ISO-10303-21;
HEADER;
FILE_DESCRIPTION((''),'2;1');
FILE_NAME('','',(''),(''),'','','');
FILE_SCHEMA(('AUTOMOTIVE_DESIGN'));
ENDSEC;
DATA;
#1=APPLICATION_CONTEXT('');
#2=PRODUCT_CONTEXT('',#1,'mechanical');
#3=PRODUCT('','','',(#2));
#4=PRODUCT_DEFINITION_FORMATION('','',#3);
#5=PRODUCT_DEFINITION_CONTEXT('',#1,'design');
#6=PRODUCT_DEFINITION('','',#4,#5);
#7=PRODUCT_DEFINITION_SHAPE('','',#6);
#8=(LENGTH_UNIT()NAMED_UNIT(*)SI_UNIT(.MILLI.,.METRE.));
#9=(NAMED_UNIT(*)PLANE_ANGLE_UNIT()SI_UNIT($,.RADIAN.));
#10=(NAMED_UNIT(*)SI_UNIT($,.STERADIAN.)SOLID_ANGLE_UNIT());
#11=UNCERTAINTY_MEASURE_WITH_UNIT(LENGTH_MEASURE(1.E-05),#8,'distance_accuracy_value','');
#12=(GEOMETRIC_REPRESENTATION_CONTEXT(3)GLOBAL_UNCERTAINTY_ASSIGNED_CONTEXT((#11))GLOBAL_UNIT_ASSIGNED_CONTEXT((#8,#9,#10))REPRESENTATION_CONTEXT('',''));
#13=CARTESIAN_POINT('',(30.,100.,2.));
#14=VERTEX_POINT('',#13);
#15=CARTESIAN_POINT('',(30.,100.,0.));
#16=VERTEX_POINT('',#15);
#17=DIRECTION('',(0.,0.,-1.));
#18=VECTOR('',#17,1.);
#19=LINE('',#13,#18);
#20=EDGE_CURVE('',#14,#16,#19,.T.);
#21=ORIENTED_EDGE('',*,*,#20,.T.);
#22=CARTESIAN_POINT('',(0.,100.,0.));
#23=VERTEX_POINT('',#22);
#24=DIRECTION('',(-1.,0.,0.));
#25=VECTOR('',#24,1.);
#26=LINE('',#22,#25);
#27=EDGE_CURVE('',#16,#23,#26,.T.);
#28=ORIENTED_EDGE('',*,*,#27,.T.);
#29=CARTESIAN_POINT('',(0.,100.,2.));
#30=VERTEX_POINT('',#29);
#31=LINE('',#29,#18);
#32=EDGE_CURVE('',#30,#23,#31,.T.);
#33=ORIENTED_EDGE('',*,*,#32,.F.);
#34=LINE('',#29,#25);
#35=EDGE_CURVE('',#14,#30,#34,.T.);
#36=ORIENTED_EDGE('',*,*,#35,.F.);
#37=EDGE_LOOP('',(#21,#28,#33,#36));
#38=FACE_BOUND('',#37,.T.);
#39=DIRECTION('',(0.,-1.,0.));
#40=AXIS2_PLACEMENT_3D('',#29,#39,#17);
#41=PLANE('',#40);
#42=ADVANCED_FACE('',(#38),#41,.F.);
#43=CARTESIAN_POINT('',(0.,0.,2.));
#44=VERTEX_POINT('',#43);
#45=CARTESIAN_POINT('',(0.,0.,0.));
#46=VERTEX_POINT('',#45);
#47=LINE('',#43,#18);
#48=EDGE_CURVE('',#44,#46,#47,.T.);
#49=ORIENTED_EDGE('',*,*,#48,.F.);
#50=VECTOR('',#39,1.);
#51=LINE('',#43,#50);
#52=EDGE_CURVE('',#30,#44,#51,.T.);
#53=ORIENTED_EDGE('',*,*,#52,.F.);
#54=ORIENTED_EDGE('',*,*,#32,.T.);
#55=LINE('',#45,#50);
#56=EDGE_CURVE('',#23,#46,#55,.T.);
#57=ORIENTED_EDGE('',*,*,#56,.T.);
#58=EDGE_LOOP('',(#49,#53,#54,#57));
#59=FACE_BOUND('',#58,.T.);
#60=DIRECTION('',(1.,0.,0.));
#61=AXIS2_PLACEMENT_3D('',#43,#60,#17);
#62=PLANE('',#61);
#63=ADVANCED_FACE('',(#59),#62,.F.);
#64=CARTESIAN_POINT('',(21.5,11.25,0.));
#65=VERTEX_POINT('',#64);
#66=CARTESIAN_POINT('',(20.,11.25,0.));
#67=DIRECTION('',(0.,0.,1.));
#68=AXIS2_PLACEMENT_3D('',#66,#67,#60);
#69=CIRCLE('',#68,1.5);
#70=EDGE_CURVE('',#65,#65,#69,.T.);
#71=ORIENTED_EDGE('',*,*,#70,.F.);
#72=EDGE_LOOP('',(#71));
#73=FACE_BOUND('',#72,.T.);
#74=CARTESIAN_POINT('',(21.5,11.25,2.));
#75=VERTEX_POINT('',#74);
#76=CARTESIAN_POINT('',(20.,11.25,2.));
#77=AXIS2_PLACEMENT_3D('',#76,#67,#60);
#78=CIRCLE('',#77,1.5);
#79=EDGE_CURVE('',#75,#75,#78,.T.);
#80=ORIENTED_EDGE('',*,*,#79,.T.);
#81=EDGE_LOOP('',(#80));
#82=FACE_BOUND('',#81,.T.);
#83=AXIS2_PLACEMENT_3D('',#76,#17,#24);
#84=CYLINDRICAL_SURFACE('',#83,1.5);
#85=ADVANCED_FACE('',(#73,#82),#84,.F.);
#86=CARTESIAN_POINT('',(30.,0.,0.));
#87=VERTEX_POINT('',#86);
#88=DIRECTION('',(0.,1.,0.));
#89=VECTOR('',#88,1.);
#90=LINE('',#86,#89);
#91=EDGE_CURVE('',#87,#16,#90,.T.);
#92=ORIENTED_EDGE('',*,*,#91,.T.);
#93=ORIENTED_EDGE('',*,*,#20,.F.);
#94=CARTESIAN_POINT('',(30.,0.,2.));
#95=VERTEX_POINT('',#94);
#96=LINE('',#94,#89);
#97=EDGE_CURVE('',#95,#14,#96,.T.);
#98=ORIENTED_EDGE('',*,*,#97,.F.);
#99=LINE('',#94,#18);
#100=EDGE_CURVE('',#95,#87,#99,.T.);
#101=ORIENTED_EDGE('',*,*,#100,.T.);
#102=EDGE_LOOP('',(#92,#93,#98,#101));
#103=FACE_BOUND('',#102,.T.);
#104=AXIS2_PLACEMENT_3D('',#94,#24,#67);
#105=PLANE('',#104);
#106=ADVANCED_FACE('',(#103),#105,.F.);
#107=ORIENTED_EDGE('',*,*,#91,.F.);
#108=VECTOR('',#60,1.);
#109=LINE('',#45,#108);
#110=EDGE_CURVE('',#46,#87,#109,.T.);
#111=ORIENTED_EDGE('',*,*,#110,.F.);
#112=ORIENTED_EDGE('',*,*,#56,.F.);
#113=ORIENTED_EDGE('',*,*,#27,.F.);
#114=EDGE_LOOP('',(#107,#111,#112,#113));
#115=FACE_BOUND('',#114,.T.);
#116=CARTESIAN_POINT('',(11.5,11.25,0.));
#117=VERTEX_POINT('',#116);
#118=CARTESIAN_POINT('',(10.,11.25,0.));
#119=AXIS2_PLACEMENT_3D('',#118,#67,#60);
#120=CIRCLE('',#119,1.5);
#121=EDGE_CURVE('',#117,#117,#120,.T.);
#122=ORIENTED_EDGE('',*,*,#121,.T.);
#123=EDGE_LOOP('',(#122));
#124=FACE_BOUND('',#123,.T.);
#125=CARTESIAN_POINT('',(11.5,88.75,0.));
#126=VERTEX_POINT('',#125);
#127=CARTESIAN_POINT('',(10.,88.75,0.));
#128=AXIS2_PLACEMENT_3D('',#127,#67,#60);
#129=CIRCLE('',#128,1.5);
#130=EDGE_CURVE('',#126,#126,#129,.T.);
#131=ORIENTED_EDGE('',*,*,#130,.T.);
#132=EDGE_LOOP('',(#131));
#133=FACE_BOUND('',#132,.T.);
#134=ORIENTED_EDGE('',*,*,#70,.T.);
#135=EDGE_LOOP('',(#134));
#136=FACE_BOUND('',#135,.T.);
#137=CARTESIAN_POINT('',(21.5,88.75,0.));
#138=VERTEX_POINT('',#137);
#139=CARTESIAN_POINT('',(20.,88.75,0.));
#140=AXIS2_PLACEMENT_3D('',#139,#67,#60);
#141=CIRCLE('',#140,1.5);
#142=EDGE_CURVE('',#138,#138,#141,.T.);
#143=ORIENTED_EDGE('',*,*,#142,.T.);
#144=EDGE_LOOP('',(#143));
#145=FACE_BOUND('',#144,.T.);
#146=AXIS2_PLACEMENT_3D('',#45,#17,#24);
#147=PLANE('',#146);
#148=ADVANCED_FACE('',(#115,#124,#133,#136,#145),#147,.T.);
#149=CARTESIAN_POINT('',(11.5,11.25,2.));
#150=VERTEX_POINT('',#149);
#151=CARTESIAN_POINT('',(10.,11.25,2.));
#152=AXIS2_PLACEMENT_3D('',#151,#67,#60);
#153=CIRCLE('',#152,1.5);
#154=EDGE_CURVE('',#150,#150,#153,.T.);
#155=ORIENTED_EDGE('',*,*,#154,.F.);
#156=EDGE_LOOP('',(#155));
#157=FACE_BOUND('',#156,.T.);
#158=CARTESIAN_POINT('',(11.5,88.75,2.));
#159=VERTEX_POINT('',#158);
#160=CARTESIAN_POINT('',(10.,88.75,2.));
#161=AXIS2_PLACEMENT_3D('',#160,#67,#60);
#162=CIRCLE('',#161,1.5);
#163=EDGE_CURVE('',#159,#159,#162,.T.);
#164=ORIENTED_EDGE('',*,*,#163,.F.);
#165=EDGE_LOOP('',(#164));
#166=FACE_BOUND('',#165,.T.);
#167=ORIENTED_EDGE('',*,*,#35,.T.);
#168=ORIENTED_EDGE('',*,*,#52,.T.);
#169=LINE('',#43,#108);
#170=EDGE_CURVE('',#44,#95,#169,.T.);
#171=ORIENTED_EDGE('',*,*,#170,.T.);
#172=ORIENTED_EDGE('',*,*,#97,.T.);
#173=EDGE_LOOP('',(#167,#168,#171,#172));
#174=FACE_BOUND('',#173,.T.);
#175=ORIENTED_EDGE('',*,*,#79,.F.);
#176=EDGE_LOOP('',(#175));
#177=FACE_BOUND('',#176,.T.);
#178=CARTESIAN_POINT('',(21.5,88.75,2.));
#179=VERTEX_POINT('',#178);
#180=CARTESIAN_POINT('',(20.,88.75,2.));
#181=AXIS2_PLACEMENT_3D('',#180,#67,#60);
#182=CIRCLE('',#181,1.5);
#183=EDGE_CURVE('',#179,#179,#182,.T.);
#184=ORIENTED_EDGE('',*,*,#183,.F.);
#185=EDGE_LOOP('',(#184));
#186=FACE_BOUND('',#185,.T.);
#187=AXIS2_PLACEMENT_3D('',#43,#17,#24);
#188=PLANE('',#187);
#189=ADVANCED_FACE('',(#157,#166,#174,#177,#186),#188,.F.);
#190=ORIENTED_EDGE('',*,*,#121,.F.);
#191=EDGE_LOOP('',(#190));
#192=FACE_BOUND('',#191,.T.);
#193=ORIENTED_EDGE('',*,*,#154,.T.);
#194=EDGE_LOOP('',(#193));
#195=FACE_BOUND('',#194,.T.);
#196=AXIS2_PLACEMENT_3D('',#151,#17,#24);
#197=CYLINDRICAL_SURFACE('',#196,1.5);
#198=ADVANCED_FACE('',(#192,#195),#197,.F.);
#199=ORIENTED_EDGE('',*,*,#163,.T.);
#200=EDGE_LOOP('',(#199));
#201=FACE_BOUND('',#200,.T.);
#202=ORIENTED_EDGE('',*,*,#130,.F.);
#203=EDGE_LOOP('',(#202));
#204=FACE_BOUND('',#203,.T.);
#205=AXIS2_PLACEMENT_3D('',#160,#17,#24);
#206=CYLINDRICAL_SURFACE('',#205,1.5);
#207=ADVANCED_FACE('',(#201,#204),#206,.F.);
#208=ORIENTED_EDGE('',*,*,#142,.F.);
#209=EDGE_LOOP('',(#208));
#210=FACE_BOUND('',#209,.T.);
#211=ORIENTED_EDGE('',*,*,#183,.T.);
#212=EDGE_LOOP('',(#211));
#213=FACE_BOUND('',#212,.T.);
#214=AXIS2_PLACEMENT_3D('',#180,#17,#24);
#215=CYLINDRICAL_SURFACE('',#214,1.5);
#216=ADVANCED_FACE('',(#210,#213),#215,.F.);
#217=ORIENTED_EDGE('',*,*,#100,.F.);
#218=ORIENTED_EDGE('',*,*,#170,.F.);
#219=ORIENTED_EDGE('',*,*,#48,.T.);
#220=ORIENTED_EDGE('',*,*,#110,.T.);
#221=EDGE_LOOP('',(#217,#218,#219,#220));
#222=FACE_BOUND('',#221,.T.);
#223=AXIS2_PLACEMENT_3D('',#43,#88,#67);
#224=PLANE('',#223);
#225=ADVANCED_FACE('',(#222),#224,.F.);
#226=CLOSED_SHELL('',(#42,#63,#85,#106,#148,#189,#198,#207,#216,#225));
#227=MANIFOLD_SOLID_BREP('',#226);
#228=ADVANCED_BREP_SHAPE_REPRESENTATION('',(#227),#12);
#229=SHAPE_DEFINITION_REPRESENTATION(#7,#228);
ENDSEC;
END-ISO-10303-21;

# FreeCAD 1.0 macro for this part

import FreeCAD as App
import Part
import Sketcher
Q = App.Units.Quantity

doc = App.newDocument("Part")
body = doc.addObject("PartDesign::Body", "Body")

# Sketch on XY plane
sketch1 = body.newObject("Sketcher::SketchObject", "Sketch")
sketch1.AttachmentSupport = (doc.getObject("XY_Plane"), [""])
sketch1.MapMode = "FlatFace"
sketch1.addGeometry(Part.LineSegment(App.Vector(0, 100, 0), App.Vector(0, 0, 0)), False)
sketch1.addGeometry(Part.LineSegment(App.Vector(0, 0, 0), App.Vector(30, 0, 0)), False)
sketch1.addGeometry(Part.LineSegment(App.Vector(30, 0, 0), App.Vector(30, 100, 0)), False)
sketch1.addGeometry(Part.LineSegment(App.Vector(30, 100, 0), App.Vector(0, 100, 0)), False)
sketch1.addGeometry(Part.Circle(App.Vector(10, 11.2, 0), App.Vector(0, 0, 1), 1.5), False)
sketch1.addGeometry(Part.Circle(App.Vector(20, 11.2, 0), App.Vector(0, 0, 1), 1.5), False)
sketch1.addGeometry(Part.Circle(App.Vector(10, 88.8, 0), App.Vector(0, 0, 1), 1.5), False)
sketch1.addGeometry(Part.Circle(App.Vector(20, 88.8, 0), App.Vector(0, 0, 1), 1.5), False)
sketch1.addConstraint(Sketcher.Constraint("Coincident", 0, 2, 1, 1))
sketch1.addConstraint(Sketcher.Constraint("Coincident", 1, 2, 2, 1))
sketch1.addConstraint(Sketcher.Constraint("Coincident", 2, 2, 3, 1))
sketch1.addConstraint(Sketcher.Constraint("Coincident", 3, 2, 0, 1))
sketch1.addConstraint(Sketcher.Constraint("Vertical", 0))
sketch1.addConstraint(Sketcher.Constraint("Horizontal", 1))
sketch1.addConstraint(Sketcher.Constraint("Vertical", 2))
sketch1.addConstraint(Sketcher.Constraint("Horizontal", 3))
sketch1.addConstraint(Sketcher.Constraint("Coincident", 0, 2, -1, 1))
sketch1.addConstraint(Sketcher.Constraint("Equal", 4, 5))
sketch1.addConstraint(Sketcher.Constraint("Equal", 5, 6))
sketch1.addConstraint(Sketcher.Constraint("Equal", 6, 7))
sketch1.addConstraint(Sketcher.Constraint("Horizontal", 4, 3, 5, 3))
sketch1.addConstraint(Sketcher.Constraint("Horizontal", 6, 3, 7, 3))
sketch1.addConstraint(Sketcher.Constraint("Vertical", 4, 3, 6, 3))
sketch1.addConstraint(Sketcher.Constraint("Vertical", 5, 3, 7, 3))
sketch1.addConstraint(Sketcher.Constraint("Diameter", 4, Q("3 mm")))
sketch1.addConstraint(Sketcher.Constraint("DistanceX", 1, 1, 1, 2, Q("30 mm")))
sketch1.addConstraint(Sketcher.Constraint("DistanceY", 0, 2, 0, 1, Q("100 mm")))
sketch1.addConstraint(Sketcher.Constraint("DistanceX", -1, 1, 4, 3, Q("10 mm")))
sketch1.addConstraint(Sketcher.Constraint("DistanceX", -1, 1, 5, 3, Q("20 mm")))
sketch1.addConstraint(Sketcher.Constraint("DistanceY", 4, 3, 6, 3, Q("77.5 mm")))
sketch1.addConstraint(Sketcher.Constraint("DistanceY", -1, 1, 4, 3, Q("11.25 mm")))
pad1 = body.newObject("PartDesign::Pad", "Pad")
pad1.Profile = sketch1
pad1.Length = 2

doc.recompute()
